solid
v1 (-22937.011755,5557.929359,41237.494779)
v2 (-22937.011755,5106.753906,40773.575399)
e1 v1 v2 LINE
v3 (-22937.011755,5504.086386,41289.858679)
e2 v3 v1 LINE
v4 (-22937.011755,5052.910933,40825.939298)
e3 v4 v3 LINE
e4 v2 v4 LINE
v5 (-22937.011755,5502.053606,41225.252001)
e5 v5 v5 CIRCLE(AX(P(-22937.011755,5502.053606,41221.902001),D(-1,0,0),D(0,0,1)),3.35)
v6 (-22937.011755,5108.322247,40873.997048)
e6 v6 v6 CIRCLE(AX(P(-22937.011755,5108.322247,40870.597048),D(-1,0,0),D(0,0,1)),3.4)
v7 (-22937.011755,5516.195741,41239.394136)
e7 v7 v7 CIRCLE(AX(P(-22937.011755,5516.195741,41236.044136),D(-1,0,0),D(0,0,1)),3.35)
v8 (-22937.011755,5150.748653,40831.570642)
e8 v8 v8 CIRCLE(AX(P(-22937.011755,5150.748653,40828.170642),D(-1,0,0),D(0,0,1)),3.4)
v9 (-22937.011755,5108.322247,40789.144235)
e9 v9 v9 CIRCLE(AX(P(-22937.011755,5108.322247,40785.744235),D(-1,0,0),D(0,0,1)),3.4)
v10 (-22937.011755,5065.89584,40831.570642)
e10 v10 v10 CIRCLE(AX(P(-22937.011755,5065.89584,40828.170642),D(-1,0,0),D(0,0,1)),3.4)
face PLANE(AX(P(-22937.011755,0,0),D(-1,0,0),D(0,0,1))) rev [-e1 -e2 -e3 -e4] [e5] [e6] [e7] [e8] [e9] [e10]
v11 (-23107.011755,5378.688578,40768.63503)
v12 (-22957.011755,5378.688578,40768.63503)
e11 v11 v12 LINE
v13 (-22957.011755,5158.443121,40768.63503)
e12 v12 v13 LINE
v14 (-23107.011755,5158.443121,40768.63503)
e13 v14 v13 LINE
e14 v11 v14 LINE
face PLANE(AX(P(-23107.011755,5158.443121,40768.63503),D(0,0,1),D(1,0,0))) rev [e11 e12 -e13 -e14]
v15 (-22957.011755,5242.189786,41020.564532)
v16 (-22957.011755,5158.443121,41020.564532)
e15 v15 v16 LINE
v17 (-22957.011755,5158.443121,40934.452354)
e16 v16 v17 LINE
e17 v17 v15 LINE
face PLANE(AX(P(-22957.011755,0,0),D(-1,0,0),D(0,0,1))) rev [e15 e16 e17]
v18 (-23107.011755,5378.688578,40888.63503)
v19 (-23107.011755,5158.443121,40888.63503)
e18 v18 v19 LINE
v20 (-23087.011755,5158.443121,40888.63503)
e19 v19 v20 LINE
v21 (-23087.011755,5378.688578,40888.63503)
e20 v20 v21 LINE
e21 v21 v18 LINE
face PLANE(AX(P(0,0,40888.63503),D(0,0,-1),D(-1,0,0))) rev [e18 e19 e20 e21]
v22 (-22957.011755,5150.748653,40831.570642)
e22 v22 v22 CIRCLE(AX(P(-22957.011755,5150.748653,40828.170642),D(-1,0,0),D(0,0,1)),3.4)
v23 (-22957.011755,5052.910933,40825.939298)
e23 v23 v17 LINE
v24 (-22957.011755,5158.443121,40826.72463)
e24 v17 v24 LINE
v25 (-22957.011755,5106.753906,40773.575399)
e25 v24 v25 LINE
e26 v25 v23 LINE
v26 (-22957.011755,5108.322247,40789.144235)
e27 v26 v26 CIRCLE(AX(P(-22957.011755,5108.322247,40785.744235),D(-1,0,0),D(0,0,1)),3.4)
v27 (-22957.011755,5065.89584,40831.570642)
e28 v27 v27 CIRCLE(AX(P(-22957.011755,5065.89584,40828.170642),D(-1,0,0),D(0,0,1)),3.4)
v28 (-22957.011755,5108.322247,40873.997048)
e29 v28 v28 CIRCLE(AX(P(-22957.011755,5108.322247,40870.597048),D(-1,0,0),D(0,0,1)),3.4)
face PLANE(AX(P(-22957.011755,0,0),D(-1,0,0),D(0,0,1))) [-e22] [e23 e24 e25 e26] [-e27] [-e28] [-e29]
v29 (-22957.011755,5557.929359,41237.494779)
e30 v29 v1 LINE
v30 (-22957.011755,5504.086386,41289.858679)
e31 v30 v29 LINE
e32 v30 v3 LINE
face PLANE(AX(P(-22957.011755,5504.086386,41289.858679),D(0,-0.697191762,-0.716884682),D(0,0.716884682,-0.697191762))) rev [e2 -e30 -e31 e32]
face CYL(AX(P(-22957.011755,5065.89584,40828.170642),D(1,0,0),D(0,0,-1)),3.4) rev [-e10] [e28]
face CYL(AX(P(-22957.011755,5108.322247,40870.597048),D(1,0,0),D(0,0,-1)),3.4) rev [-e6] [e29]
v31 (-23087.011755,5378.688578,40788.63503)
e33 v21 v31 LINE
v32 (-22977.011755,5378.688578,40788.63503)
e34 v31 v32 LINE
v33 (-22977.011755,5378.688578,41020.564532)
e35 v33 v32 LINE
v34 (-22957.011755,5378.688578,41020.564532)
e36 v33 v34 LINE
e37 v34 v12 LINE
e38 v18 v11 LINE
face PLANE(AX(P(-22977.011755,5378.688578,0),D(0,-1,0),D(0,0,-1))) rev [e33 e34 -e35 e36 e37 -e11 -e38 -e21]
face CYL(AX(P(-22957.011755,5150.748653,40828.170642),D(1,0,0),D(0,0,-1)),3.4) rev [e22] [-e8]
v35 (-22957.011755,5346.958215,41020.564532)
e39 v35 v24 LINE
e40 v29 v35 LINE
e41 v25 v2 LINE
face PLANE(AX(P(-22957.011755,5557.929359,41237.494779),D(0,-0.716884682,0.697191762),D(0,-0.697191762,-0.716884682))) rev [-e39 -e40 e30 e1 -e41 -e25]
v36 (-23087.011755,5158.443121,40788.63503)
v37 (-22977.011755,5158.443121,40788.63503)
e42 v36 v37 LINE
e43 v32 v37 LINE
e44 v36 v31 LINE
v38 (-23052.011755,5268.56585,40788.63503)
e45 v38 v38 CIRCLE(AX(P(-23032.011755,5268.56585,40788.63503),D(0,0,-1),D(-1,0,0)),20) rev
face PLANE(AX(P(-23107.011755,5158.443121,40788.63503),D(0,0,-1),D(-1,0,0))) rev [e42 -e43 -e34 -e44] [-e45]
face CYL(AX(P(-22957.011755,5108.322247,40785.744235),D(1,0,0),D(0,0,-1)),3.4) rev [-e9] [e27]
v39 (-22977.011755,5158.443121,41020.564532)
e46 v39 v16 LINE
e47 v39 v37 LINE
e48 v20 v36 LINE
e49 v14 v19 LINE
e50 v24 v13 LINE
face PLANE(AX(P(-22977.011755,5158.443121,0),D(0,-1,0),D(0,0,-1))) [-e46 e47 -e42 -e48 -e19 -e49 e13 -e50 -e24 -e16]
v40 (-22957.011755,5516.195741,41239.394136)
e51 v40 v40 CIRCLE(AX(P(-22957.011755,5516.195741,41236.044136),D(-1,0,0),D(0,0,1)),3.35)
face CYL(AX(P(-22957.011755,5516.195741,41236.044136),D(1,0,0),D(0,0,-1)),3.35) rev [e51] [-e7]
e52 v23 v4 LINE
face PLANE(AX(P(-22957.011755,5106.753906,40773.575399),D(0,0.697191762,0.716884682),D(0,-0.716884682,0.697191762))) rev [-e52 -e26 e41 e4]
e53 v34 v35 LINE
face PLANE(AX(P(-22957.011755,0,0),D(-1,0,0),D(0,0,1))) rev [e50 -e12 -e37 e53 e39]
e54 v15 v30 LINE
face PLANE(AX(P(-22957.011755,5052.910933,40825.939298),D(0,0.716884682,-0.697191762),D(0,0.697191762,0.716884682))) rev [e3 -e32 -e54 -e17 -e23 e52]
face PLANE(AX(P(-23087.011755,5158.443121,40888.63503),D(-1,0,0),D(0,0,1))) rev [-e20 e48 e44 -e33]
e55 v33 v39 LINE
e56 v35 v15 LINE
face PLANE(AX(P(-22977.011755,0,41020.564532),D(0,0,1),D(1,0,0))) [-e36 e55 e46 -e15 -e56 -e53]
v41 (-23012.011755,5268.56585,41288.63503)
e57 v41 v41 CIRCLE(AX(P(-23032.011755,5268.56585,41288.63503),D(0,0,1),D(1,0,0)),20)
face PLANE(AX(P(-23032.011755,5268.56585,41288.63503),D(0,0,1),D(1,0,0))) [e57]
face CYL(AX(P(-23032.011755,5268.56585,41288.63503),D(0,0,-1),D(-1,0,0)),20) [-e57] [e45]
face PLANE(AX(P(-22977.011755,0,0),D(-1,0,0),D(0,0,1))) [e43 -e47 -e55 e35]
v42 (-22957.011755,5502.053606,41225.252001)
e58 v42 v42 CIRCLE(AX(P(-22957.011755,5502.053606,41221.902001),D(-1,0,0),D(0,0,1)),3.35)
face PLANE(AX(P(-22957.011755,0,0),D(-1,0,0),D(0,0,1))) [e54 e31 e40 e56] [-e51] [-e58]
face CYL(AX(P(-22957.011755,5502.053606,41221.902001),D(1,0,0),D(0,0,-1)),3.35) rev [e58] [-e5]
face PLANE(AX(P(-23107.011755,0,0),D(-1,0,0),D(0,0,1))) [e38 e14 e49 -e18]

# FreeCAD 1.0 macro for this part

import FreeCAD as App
import Part
import Sketcher
from FreeCAD import Vector
Q = App.Units.Quantity


def add_polygon(sketch, points):
    """Adds a closed chain of lines whose ends are joined by coincident constraints."""
    first, n = sketch.GeometryCount, len(points)
    for a, b in zip(points, points[1:] + points[:1]):
        sketch.addGeometry(Part.LineSegment(App.Vector(*a, 0), App.Vector(*b, 0)), False)
    for i in range(n):
        sketch.addConstraint(Sketcher.Constraint("Coincident", first + i, 2, first + (i + 1) % n, 1))

doc = App.newDocument("Part")
body = doc.addObject("PartDesign::Body", "Body")

sketch1 = doc.addObject("Sketcher::SketchObject", "Sketch")
body.addObject(sketch1)
sketch1.AttachmentSupport = (doc.YZ_Plane, [""])
sketch1.MapMode = "FlatFace"
sketch1.AttachmentOffset = App.Placement(Vector(0, 0, -22937.011755), App.Rotation())
add_polygon(sketch1, [(5557.929359, 41237.494779), (5106.753906, 40773.575399), (5052.910933, 40825.939298), (5504.086386, 41289.858679)])
sketch1.addGeometry(Part.Circle(Vector(5065.89584, 40828.170642, 0), Vector(0, 0, 1), 3.4), False)
sketch1.addGeometry(Part.Circle(Vector(5108.322247, 40785.744235, 0), Vector(0, 0, 1), 3.4), False)
sketch1.addGeometry(Part.Circle(Vector(5108.322247, 40870.597048, 0), Vector(0, 0, 1), 3.4), False)
sketch1.addGeometry(Part.Circle(Vector(5150.748653, 40828.170642, 0), Vector(0, 0, 1), 3.4), False)
sketch1.addGeometry(Part.Circle(Vector(5502.053606, 41221.902001, 0), Vector(0, 0, 1), 3.35), False)
sketch1.addGeometry(Part.Circle(Vector(5516.195741, 41236.044136, 0), Vector(0, 0, 1), 3.35), False)
sketch1.addConstraint([
    Sketcher.Constraint("Equal", 4, 5),
    Sketcher.Constraint("Equal", 5, 6),
    Sketcher.Constraint("Equal", 6, 7),
    Sketcher.Constraint("Equal", 8, 9),
    Sketcher.Constraint("Perpendicular", 0, 1),
    Sketcher.Constraint("Perpendicular", 1, 2),
    Sketcher.Constraint("Perpendicular", 2, 3),
    Sketcher.Constraint("Horizontal", 4, 3, 7, 3),
    Sketcher.Constraint("Vertical", 5, 3, 6, 3),
    Sketcher.Constraint("Diameter", 4, Q("6.8 mm")),
    Sketcher.Constraint("Diameter", 8, Q("6.7 mm")),
    Sketcher.Constraint("DistanceY", -1, 1, 8, 3, Q("41221.902001 mm")),
    Sketcher.Constraint("DistanceY", -1, 1, 0, 2, Q("40773.575399 mm")),
    Sketcher.Constraint("DistanceX", 4, 3, 9, 3, Q("450.299901 mm")),
    Sketcher.Constraint("DistanceY", 5, 3, 9, 3, Q("450.299901 mm")),
    Sketcher.Constraint("DistanceX", 0, 2, 8, 3, Q("395.299699 mm")),
    Sketcher.Constraint("DistanceY", 0, 2, 1, 2, Q("52.363899 mm")),
    Sketcher.Constraint("Distance", 1, Q("75.106882 mm")),
    Sketcher.Constraint("DistanceX", -1, 1, 4, 3, Q("5065.89584 mm")),
    Sketcher.Constraint("DistanceY", -1, 1, 4, 3, Q("40828.170642 mm")),
    Sketcher.Constraint("DistanceY", -1, 1, 6, 3, Q("40870.597048 mm")),
    Sketcher.Constraint("DistanceY", -1, 1, 2, 2, Q("41289.858679 mm")),
    Sketcher.Constraint("DistanceX", -1, 1, 3, 2, Q("5557.929359 mm")),
    Sketcher.Constraint("DistanceX", 6, 3, 8, 3, Q("393.731359 mm")),
    Sketcher.Constraint("DistanceX", 1, 2, 7, 3, Q("97.83772 mm")),
    Sketcher.Constraint("DistanceY", -1, 1, 5, 3, Q("40785.744235 mm")),
])
pad1 = doc.addObject("PartDesign::Pad", "Pad")
body.addObject(pad1)
pad1.Profile = sketch1
pad1.Length = 20
pad1.Reversed = True

sketch2 = doc.addObject("Sketcher::SketchObject", "Sketch001")
body.addObject(sketch2)
sketch2.AttachmentSupport = (doc.YZ_Plane, [""])
sketch2.MapMode = "FlatFace"
sketch2.AttachmentOffset = App.Placement(Vector(0, 0, -22957.011755), App.Rotation())
add_polygon(sketch2, [(5378.688578, 40788.63503), (5158.443121, 40788.63503), (5158.443121, 41020.564532), (5378.688578, 41020.564532)])
sketch2.addConstraint([
    Sketcher.Constraint("Horizontal", 0),
    Sketcher.Constraint("Vertical", 1),
    Sketcher.Constraint("Horizontal", 2),
    Sketcher.Constraint("Vertical", 3),
    Sketcher.Constraint("DistanceX", 0, 2, 0, 1, Q("220.245457 mm")),
    Sketcher.Constraint("DistanceY", 1, 1, 1, 2, Q("231.929502 mm")),
    Sketcher.Constraint("DistanceX", -1, 1, 0, 2, Q("5158.443121 mm")),
    Sketcher.Constraint("DistanceY", -1, 1, 0, 2, Q("40788.63503 mm")),
])
pad2 = doc.addObject("PartDesign::Pad", "Pad001")
body.addObject(pad2)
pad2.Profile = sketch2
pad2.Length = 20
pad2.Reversed = True

sketch3 = doc.addObject("Sketcher::SketchObject", "Sketch002")
body.addObject(sketch3)
sketch3.AttachmentSupport = (doc.YZ_Plane, [""])
sketch3.MapMode = "FlatFace"
sketch3.AttachmentOffset = App.Placement(Vector(0, 0, -22957.011755), App.Rotation())
add_polygon(sketch3, [(5378.688578, 40768.63503), (5158.443121, 40768.63503), (5158.443121, 40788.63503), (5378.688578, 40788.63503)])
sketch3.addConstraint([
    Sketcher.Constraint("Horizontal", 0),
    Sketcher.Constraint("Vertical", 1),
    Sketcher.Constraint("Horizontal", 2),
    Sketcher.Constraint("Vertical", 3),
    Sketcher.Constraint("DistanceY", 1, 1, 1, 2, Q("20 mm")),
    Sketcher.Constraint("DistanceX", 0, 2, 0, 1, Q("220.245457 mm")),
    Sketcher.Constraint("DistanceX", -1, 1, 0, 2, Q("5158.443121 mm")),
    Sketcher.Constraint("DistanceY", -1, 1, 0, 2, Q("40768.63503 mm")),
])
pad3 = doc.addObject("PartDesign::Pad", "Pad002")
body.addObject(pad3)
pad3.Profile = sketch3
pad3.Length = 150
pad3.Reversed = True

sketch4 = doc.addObject("Sketcher::SketchObject", "Sketch003")
body.addObject(sketch4)
sketch4.AttachmentSupport = (doc.XY_Plane, [""])
sketch4.MapMode = "FlatFace"
sketch4.AttachmentOffset = App.Placement(Vector(0, 0, 40788.63503), App.Rotation())
add_polygon(sketch4, [(-23107.011755, 5378.688578), (-23107.011755, 5158.443121), (-23087.011755, 5158.443121), (-23087.011755, 5378.688578)])
sketch4.addConstraint([
    Sketcher.Constraint("Vertical", 0),
    Sketcher.Constraint("Horizontal", 1),
    Sketcher.Constraint("Vertical", 2),
    Sketcher.Constraint("Horizontal", 3),
    Sketcher.Constraint("DistanceX", 1, 1, 1, 2, Q("20 mm")),
    Sketcher.Constraint("DistanceY", 0, 2, 0, 1, Q("220.245457 mm")),
    Sketcher.Constraint("DistanceY", -1, 1, 0, 2, Q("5158.443121 mm")),
    Sketcher.Constraint("DistanceX", 0, 2, -1, 1, Q("23107.011755 mm")),
])
pad4 = doc.addObject("PartDesign::Pad", "Pad003")
body.addObject(pad4)
pad4.Profile = sketch4
pad4.Length = 100

sketch5 = doc.addObject("Sketcher::SketchObject", "Sketch004")
body.addObject(sketch5)
sketch5.AttachmentSupport = (doc.XY_Plane, [""])
sketch5.MapMode = "FlatFace"
sketch5.AttachmentOffset = App.Placement(Vector(0, 0, 40788.63503), App.Rotation())
sketch5.addGeometry(Part.Circle(Vector(-23032.011755, 5268.56585, 0), Vector(0, 0, 1), 20), False)
sketch5.addConstraint([
    Sketcher.Constraint("Diameter", 0, Q("40 mm")),
    Sketcher.Constraint("DistanceY", -1, 1, 0, 3, Q("5268.56585 mm")),
    Sketcher.Constraint("DistanceX", 0, 3, -1, 1, Q("23032.011755 mm")),
])
pad5 = doc.addObject("PartDesign::Pad", "Pad004")
body.addObject(pad5)
pad5.Profile = sketch5
pad5.Length = 500

doc.recompute()
